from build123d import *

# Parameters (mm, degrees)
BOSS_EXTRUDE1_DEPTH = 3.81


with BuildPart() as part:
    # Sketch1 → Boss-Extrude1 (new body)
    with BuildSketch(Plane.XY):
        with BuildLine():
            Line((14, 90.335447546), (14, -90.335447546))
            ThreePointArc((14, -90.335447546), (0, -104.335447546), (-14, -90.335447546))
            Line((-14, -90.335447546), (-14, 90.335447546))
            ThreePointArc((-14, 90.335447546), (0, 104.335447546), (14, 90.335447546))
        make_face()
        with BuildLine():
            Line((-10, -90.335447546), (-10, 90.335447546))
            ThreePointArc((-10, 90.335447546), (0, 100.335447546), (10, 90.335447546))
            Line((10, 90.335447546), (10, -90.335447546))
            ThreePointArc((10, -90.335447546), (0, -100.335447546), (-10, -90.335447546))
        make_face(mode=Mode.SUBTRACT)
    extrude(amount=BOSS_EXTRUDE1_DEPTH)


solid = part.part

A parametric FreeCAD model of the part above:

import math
import FreeCAD as App
import Part
import Sketcher
from FreeCAD import Vector
Q = App.Units.Quantity

doc = App.newDocument("Part")
params = doc.addObject("Spreadsheet::Sheet", "Params")
for row, (alias, value) in enumerate([
    ("sketch1_radius", "14 mm"),
    ("sketch1_radius2", "10 mm"),
    ("pad1_length", "3.81 mm"),
], start=1):
    params.set(f"A{row}", alias)
    params.set(f"B{row}", "=" + value)
    params.setAlias(f"B{row}", alias)

body = doc.addObject("PartDesign::Body", "Body")

# Sketch on XY plane
sketch1 = body.newObject("Sketcher::SketchObject", "Sketch")
sketch1.AttachmentSupport = (doc.getObject("XY_Plane"), [""])
sketch1.MapMode = "FlatFace"
sketch1.addGeometry([
    Part.LineSegment(Vector(14, -90, 0), Vector(14, 90, 0)),  # 0
    Part.ArcOfCircle(Part.Circle(Vector(0, 90, 0), Vector(0, 0, 1), 14), math.radians(0), math.radians(180)),  # 1
    Part.LineSegment(Vector(-14, 90, 0), Vector(-14, -90, 0)),  # 2
    Part.ArcOfCircle(Part.Circle(Vector(0, -90, 0), Vector(0, 0, 1), 14), math.radians(180), math.radians(360)),  # 3
    Part.LineSegment(Vector(-10, -90, 0), Vector(-10, 90, 0)),  # 4
    Part.ArcOfCircle(Part.Circle(Vector(0, 90, 0), Vector(0, 0, 1), 10), math.radians(0), math.radians(180)),  # 5
    Part.LineSegment(Vector(10, 90, 0), Vector(10, -90, 0)),  # 6
    Part.ArcOfCircle(Part.Circle(Vector(0, -90, 0), Vector(0, 0, 1), 10), math.radians(180), math.radians(360)),  # 7
], False)
sketch1.addConstraint([
    Sketcher.Constraint("Tangent", 0, 2, 1, 1),
    Sketcher.Constraint("Tangent", 1, 2, 2, 1),
    Sketcher.Constraint("Tangent", 2, 2, 3, 1),
    Sketcher.Constraint("Tangent", 3, 2, 0, 1),
    Sketcher.Constraint("Tangent", 4, 2, 5, 2),
    Sketcher.Constraint("Tangent", 5, 1, 6, 1),
    Sketcher.Constraint("Tangent", 6, 2, 7, 2),
    Sketcher.Constraint("Tangent", 7, 1, 4, 1),
    Sketcher.Constraint("Vertical", 0),
    Sketcher.Constraint("Vertical", 2),
    Sketcher.Constraint("Vertical", 4),
    Sketcher.Constraint("Vertical", 6),
    Sketcher.Constraint("Coincident", 5, 3, 1, 3),
    Sketcher.Constraint("Symmetric", 1, 3, 3, 3, -1, 1),
    Sketcher.Constraint("Horizontal", 7, 3, 2, 2),
    Sketcher.Constraint("Radius", 1, Q("14 mm")),
    Sketcher.Constraint("Radius", 5, Q("10 mm")),
    Sketcher.Constraint("DistanceY", 0, 1, 0, 2, Q("180.670895 mm")),
])
sketch1.setExpression("Constraints[15]", "Params.sketch1_radius")
sketch1.setExpression("Constraints[16]", "Params.sketch1_radius2")
pad1 = body.newObject("PartDesign::Pad", "Pad")
pad1.Profile = sketch1
pad1.setExpression("Length", "Params.pad1_length")

doc.recompute()
